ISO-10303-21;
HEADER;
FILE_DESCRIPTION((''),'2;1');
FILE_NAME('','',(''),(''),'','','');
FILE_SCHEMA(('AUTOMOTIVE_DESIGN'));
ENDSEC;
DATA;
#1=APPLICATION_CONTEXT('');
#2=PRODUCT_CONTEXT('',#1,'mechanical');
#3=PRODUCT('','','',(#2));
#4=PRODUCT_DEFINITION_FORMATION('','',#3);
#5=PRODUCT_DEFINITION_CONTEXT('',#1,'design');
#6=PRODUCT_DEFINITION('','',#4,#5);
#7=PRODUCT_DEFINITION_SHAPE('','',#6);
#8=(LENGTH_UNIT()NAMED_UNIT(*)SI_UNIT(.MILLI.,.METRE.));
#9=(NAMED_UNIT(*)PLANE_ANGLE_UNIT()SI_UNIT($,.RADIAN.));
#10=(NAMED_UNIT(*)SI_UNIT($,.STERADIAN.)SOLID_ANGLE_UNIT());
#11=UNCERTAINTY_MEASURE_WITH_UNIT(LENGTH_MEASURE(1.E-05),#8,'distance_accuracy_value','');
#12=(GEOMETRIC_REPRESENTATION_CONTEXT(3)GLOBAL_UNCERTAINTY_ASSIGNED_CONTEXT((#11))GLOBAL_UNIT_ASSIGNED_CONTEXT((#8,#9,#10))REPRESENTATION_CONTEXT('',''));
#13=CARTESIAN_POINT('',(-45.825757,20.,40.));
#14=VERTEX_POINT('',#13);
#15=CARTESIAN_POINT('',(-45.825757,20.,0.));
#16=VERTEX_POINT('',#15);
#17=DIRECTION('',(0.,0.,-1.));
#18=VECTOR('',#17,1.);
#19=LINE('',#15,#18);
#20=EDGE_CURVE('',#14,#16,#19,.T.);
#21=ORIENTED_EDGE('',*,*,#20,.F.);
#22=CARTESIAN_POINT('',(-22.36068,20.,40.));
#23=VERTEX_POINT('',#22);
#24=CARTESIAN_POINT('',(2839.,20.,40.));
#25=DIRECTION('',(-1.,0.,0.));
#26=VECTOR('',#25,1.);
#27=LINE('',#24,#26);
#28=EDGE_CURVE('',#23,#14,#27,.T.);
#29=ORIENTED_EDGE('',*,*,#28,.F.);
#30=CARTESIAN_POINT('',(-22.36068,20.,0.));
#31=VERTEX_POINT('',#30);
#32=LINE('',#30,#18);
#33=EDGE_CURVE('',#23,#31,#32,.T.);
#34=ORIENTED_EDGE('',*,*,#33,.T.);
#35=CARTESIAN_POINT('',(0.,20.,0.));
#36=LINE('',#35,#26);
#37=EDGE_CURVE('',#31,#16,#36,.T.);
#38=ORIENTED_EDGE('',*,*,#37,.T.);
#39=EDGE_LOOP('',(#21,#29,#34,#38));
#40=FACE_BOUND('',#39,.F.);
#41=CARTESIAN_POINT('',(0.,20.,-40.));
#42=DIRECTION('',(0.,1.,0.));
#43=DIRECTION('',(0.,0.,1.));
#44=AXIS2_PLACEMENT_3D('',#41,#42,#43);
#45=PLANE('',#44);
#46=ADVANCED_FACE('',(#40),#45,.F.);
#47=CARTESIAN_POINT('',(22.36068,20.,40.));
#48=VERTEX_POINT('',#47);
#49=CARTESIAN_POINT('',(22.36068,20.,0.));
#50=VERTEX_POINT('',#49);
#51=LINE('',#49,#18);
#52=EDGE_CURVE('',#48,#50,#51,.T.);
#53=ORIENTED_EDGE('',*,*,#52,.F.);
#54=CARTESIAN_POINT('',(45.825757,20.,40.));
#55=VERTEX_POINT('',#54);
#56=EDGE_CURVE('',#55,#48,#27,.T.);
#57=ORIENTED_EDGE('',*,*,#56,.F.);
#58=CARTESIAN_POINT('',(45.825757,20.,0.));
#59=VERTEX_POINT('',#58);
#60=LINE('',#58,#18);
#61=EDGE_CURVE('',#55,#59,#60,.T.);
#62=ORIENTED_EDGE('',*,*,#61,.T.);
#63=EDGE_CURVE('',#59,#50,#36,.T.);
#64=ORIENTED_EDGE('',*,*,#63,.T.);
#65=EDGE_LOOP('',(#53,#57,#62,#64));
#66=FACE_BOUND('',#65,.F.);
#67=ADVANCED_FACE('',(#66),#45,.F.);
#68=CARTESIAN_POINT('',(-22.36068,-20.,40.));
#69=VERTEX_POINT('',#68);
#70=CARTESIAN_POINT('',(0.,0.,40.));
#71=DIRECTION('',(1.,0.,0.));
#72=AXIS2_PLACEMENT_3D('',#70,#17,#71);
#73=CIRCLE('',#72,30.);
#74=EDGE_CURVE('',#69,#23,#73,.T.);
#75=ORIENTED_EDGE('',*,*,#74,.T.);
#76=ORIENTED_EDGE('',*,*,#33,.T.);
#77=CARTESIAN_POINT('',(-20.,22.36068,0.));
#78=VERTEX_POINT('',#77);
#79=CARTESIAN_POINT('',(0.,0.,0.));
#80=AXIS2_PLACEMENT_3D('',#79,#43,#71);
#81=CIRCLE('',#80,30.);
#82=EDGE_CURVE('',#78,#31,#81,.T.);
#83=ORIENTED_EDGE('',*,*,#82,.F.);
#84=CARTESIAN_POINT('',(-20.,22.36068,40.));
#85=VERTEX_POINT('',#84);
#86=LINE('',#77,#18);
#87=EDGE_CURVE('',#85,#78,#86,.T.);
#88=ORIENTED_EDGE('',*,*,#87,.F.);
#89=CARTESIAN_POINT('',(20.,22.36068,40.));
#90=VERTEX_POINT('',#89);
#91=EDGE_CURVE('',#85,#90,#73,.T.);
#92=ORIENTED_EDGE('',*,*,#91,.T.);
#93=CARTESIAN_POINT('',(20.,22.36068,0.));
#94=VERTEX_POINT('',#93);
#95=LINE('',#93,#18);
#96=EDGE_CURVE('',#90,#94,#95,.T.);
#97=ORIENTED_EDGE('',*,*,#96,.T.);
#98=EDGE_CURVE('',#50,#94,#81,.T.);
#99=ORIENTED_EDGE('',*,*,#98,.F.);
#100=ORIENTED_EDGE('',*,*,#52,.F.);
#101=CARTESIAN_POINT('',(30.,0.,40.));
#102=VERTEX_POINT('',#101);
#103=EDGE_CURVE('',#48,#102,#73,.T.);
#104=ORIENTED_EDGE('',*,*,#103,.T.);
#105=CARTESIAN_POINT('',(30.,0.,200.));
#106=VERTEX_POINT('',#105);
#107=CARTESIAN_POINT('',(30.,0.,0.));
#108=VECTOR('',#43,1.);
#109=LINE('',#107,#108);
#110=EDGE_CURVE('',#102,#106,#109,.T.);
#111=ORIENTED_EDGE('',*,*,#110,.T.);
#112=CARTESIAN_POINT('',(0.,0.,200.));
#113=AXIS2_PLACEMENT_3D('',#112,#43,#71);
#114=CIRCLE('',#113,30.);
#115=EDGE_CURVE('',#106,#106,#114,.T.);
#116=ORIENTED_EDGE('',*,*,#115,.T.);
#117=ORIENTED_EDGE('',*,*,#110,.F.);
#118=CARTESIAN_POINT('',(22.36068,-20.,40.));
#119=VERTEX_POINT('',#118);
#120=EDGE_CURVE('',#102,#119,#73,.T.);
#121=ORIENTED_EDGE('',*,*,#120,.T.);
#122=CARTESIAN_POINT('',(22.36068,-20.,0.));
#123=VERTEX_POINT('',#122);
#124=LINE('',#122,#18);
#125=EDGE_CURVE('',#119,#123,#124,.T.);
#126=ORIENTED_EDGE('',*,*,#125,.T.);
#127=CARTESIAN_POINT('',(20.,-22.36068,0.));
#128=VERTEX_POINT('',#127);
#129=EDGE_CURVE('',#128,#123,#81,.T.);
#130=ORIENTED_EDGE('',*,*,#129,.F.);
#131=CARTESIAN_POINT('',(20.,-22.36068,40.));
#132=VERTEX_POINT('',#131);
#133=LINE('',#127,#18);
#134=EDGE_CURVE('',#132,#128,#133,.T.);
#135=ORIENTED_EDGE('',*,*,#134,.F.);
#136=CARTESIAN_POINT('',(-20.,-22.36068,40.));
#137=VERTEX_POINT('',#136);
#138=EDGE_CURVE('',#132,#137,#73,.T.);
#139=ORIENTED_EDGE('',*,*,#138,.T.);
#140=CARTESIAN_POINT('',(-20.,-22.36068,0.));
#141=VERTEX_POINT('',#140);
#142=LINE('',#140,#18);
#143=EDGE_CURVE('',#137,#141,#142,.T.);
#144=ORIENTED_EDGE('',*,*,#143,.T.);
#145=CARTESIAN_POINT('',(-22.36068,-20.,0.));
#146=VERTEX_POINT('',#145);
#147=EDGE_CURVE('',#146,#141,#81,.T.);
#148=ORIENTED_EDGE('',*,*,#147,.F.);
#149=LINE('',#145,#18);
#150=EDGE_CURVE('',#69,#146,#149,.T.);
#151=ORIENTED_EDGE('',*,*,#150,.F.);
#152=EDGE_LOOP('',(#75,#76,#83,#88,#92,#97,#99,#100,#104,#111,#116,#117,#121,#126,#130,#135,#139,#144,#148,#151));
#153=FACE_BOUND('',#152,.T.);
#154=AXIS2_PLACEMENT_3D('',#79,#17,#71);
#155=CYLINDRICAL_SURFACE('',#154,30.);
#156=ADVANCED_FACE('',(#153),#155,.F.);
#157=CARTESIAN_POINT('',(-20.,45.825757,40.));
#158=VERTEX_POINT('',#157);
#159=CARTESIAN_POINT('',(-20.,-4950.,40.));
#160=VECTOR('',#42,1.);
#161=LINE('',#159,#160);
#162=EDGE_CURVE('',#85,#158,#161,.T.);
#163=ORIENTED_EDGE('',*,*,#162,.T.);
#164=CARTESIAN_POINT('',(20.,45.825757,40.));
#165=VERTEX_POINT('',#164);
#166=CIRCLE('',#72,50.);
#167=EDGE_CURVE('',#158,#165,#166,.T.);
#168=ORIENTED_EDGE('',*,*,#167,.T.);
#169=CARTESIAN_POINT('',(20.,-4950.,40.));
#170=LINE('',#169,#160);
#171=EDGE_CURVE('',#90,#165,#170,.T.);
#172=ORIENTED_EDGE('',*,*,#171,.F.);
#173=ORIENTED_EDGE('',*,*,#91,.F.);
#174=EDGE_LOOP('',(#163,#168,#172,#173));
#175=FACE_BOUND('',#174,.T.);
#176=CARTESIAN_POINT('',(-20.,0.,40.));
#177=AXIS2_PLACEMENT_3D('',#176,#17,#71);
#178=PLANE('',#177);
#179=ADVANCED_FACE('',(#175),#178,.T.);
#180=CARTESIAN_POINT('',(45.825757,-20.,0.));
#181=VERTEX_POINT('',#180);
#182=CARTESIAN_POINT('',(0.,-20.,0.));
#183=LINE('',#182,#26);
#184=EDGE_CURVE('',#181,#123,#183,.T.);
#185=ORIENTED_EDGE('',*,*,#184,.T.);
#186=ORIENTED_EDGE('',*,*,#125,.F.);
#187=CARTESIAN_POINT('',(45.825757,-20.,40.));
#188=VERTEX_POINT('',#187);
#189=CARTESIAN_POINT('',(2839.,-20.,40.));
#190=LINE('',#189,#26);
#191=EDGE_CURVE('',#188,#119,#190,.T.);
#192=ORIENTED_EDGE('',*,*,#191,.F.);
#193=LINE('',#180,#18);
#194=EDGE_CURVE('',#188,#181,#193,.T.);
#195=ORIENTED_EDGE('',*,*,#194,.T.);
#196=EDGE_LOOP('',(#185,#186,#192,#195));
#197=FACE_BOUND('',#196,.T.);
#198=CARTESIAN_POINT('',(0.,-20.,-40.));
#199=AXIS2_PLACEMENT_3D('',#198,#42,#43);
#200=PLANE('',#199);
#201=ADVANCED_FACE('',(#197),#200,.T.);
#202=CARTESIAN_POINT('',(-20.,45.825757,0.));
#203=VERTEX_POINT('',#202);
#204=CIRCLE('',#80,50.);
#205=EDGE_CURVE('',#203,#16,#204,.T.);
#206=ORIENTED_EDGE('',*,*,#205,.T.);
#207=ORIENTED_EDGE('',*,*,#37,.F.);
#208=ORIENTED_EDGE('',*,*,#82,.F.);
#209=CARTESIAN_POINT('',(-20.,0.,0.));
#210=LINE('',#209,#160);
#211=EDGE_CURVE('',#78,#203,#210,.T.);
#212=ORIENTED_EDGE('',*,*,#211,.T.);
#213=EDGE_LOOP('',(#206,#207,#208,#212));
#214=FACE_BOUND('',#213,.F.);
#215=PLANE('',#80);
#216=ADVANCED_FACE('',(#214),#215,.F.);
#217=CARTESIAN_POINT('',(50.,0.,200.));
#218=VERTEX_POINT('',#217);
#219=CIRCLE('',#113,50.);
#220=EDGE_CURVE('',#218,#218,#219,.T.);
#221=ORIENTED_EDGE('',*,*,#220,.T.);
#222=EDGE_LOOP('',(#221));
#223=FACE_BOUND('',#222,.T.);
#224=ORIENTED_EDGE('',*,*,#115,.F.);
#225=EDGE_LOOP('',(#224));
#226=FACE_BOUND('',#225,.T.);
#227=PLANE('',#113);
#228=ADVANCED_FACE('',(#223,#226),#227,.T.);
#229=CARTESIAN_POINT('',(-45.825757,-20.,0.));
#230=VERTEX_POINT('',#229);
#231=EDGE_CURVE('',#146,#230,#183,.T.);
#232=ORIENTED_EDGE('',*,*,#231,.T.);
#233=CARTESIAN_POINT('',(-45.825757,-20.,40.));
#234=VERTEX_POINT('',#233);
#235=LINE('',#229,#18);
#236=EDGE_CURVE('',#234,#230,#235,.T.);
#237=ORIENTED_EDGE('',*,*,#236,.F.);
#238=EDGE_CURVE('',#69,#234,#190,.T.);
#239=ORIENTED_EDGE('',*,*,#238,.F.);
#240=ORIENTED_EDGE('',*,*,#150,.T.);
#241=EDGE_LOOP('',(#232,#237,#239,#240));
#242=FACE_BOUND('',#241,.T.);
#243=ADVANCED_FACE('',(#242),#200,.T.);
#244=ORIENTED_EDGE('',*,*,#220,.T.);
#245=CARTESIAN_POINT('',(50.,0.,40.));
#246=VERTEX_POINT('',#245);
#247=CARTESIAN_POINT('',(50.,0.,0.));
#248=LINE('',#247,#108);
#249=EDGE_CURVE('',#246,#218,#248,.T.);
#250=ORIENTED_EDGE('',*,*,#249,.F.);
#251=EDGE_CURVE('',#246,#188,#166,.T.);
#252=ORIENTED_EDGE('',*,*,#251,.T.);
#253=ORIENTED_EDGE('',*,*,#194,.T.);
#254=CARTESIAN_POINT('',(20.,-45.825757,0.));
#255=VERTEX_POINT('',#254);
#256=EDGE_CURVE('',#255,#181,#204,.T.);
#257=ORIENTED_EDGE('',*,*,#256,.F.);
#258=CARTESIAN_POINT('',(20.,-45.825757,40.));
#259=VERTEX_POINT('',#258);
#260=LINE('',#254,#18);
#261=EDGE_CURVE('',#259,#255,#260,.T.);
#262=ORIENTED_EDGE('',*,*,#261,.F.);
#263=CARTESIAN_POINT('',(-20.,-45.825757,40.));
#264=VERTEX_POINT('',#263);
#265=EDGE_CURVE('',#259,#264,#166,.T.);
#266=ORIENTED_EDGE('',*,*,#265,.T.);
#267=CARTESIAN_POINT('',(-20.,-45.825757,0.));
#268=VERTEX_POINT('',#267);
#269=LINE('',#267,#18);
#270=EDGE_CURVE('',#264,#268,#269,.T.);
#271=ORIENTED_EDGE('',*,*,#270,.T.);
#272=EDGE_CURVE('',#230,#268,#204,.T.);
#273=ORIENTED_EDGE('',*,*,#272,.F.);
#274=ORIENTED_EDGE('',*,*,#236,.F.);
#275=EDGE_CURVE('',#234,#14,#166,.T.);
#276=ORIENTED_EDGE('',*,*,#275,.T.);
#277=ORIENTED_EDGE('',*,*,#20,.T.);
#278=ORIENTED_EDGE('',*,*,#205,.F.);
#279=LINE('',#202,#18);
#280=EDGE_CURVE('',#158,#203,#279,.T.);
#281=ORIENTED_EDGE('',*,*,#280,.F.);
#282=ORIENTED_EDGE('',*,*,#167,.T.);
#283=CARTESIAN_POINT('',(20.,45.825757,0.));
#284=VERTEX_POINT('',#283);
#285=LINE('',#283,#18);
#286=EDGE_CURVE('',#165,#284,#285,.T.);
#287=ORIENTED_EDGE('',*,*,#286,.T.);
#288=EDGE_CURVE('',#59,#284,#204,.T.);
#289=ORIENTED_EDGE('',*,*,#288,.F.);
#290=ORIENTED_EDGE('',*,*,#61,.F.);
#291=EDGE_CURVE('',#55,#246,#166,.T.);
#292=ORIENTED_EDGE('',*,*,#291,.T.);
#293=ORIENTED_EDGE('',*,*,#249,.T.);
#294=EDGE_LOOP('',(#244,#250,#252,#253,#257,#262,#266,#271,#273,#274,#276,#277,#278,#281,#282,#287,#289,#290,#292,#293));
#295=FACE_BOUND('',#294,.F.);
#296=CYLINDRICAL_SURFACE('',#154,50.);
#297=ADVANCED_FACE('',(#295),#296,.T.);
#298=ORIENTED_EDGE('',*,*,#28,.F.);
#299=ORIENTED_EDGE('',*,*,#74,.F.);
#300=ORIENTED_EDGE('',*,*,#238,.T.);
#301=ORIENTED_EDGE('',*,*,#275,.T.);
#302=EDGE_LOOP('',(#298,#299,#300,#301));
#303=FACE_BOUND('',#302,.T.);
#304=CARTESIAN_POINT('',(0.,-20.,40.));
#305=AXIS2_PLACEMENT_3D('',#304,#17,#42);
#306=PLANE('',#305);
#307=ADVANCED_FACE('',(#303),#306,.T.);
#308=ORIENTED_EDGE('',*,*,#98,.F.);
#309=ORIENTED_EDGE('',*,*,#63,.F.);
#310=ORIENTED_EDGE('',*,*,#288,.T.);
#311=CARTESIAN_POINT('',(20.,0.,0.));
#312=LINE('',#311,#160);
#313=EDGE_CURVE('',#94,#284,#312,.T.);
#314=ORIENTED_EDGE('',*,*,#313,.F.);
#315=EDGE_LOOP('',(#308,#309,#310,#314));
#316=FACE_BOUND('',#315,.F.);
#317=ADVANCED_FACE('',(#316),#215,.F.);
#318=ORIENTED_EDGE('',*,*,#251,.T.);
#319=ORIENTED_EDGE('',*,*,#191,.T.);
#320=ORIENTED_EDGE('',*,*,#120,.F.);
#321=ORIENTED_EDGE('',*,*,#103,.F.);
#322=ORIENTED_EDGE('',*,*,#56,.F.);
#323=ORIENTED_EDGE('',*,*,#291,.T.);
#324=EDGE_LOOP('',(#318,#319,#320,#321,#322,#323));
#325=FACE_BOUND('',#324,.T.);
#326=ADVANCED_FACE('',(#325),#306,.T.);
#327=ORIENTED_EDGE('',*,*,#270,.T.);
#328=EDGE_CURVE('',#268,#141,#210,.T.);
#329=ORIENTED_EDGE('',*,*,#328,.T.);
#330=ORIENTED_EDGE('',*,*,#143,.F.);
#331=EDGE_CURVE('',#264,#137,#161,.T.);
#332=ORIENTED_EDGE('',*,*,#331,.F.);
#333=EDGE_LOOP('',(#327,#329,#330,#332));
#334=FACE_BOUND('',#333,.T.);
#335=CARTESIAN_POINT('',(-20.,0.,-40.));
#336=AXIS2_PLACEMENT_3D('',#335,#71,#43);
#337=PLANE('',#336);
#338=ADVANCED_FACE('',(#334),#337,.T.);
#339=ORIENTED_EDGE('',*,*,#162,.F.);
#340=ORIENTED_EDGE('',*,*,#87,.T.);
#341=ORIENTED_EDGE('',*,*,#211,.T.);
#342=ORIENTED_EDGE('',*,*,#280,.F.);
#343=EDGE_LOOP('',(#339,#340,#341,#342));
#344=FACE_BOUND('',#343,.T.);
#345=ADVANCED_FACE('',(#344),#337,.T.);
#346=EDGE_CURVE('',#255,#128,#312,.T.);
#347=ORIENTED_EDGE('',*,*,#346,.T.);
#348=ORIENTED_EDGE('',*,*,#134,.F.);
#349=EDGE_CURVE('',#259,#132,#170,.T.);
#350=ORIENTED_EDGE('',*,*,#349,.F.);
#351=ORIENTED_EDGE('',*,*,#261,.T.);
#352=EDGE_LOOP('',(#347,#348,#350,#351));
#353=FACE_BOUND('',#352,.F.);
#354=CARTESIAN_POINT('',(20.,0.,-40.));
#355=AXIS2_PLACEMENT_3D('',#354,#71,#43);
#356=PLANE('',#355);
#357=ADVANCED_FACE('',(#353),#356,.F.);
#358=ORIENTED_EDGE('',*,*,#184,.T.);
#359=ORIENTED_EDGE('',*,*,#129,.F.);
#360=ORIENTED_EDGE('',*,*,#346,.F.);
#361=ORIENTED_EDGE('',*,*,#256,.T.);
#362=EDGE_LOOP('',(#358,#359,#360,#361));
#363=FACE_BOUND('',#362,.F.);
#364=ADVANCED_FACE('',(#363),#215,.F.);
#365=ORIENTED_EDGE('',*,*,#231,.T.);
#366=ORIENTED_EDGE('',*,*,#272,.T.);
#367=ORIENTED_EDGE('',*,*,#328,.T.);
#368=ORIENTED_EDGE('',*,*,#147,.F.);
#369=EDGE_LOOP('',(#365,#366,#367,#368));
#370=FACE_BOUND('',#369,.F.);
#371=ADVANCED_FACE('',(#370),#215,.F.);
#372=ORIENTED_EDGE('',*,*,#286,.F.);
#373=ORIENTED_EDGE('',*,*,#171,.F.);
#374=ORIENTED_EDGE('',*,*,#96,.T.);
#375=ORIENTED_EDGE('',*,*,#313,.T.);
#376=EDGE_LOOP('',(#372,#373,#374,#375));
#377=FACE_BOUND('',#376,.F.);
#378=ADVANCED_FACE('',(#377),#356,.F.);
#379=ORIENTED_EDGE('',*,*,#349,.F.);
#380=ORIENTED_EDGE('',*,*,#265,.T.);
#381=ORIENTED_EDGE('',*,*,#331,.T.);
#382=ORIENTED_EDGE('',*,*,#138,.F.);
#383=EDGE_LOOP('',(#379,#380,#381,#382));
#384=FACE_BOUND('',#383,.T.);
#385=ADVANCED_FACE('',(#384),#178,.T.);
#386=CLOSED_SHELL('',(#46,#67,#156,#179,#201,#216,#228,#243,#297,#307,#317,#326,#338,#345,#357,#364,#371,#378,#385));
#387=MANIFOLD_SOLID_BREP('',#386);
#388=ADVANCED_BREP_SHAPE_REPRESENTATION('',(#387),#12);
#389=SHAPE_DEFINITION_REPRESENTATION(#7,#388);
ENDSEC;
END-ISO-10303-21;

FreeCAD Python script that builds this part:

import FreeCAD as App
import Part
import Sketcher
Q = App.Units.Quantity

doc = App.newDocument("Part")
body = doc.addObject("PartDesign::Body", "Body")

# Sketch on XY plane
sketch1 = doc.addObject("Sketcher::SketchObject", "Sketch")
body.addObject(sketch1)
sketch1.AttachmentSupport = (doc.XY_Plane, [""])
sketch1.MapMode = "FlatFace"
sketch1.addGeometry(Part.Circle(App.Vector(0, 0, 0), App.Vector(0, 0, 1), 50), False)
sketch1.addGeometry(Part.Circle(App.Vector(0, 0, 0), App.Vector(0, 0, 1), 30), False)
sketch1.addConstraint(Sketcher.Constraint("Coincident", 0, 3, -1, 1))
sketch1.addConstraint(Sketcher.Constraint("Coincident", 1, 3, -1, 1))
sketch1.addConstraint(Sketcher.Constraint("Diameter", 0, Q("100 mm")))
sketch1.addConstraint(Sketcher.Constraint("Diameter", 1, Q("60 mm")))
pad1 = doc.addObject("PartDesign::Pad", "Pad")
body.addObject(pad1)
pad1.Profile = sketch1
pad1.Length = 200

# Sketch on XZ plane
sketch2 = doc.addObject("Sketcher::SketchObject", "Sketch001")
body.addObject(sketch2)
sketch2.AttachmentSupport = (doc.XZ_Plane, [""])
sketch2.MapMode = "FlatFace"
sketch2.addGeometry(Part.LineSegment(App.Vector(-20, 40, 0), App.Vector(-20, -40, 0)), False)
sketch2.addGeometry(Part.LineSegment(App.Vector(-20, -40, 0), App.Vector(20, -40, 0)), False)
sketch2.addGeometry(Part.LineSegment(App.Vector(20, -40, 0), App.Vector(20, 40, 0)), False)
sketch2.addGeometry(Part.LineSegment(App.Vector(20, 40, 0), App.Vector(-20, 40, 0)), False)
sketch2.addConstraint(Sketcher.Constraint("Coincident", 0, 2, 1, 1))
sketch2.addConstraint(Sketcher.Constraint("Coincident", 1, 2, 2, 1))
sketch2.addConstraint(Sketcher.Constraint("Coincident", 2, 2, 3, 1))
sketch2.addConstraint(Sketcher.Constraint("Coincident", 3, 2, 0, 1))
sketch2.addConstraint(Sketcher.Constraint("Vertical", 0))
sketch2.addConstraint(Sketcher.Constraint("Horizontal", 1))
sketch2.addConstraint(Sketcher.Constraint("Vertical", 2))
sketch2.addConstraint(Sketcher.Constraint("Horizontal", 3))
sketch2.addConstraint(Sketcher.Constraint("Symmetric", 0, 2, 2, 2, -1, 1))
sketch2.addConstraint(Sketcher.Constraint("DistanceX", 1, 1, 1, 2, Q("40 mm")))
sketch2.addConstraint(Sketcher.Constraint("DistanceY", 0, 2, 0, 1, Q("80 mm")))
pocket1 = doc.addObject("PartDesign::Pocket", "Pocket")
body.addObject(pocket1)
pocket1.Profile = sketch2
pocket1.Length = 9900
pocket1.Midplane = True

# Sketch on YZ plane
sketch3 = doc.addObject("Sketcher::SketchObject", "Sketch002")
body.addObject(sketch3)
sketch3.AttachmentSupport = (doc.YZ_Plane, [""])
sketch3.MapMode = "FlatFace"
sketch3.addGeometry(Part.LineSegment(App.Vector(-20, 40, 0), App.Vector(-20, -40, 0)), False)
sketch3.addGeometry(Part.LineSegment(App.Vector(-20, -40, 0), App.Vector(20, -40, 0)), False)
sketch3.addGeometry(Part.LineSegment(App.Vector(20, -40, 0), App.Vector(20, 40, 0)), False)
sketch3.addGeometry(Part.LineSegment(App.Vector(20, 40, 0), App.Vector(-20, 40, 0)), False)
sketch3.addConstraint(Sketcher.Constraint("Coincident", 0, 2, 1, 1))
sketch3.addConstraint(Sketcher.Constraint("Coincident", 1, 2, 2, 1))
sketch3.addConstraint(Sketcher.Constraint("Coincident", 2, 2, 3, 1))
sketch3.addConstraint(Sketcher.Constraint("Coincident", 3, 2, 0, 1))
sketch3.addConstraint(Sketcher.Constraint("Vertical", 0))
sketch3.addConstraint(Sketcher.Constraint("Horizontal", 1))
sketch3.addConstraint(Sketcher.Constraint("Vertical", 2))
sketch3.addConstraint(Sketcher.Constraint("Horizontal", 3))
sketch3.addConstraint(Sketcher.Constraint("Symmetric", 0, 2, 2, 2, -1, 1))
sketch3.addConstraint(Sketcher.Constraint("DistanceX", 1, 1, 1, 2, Q("40 mm")))
sketch3.addConstraint(Sketcher.Constraint("DistanceY", 0, 2, 0, 1, Q("80 mm")))
pocket2 = doc.addObject("PartDesign::Pocket", "Pocket001")
body.addObject(pocket2)
pocket2.Profile = sketch3
pocket2.Length = 5678
pocket2.Midplane = True

doc.recompute()
